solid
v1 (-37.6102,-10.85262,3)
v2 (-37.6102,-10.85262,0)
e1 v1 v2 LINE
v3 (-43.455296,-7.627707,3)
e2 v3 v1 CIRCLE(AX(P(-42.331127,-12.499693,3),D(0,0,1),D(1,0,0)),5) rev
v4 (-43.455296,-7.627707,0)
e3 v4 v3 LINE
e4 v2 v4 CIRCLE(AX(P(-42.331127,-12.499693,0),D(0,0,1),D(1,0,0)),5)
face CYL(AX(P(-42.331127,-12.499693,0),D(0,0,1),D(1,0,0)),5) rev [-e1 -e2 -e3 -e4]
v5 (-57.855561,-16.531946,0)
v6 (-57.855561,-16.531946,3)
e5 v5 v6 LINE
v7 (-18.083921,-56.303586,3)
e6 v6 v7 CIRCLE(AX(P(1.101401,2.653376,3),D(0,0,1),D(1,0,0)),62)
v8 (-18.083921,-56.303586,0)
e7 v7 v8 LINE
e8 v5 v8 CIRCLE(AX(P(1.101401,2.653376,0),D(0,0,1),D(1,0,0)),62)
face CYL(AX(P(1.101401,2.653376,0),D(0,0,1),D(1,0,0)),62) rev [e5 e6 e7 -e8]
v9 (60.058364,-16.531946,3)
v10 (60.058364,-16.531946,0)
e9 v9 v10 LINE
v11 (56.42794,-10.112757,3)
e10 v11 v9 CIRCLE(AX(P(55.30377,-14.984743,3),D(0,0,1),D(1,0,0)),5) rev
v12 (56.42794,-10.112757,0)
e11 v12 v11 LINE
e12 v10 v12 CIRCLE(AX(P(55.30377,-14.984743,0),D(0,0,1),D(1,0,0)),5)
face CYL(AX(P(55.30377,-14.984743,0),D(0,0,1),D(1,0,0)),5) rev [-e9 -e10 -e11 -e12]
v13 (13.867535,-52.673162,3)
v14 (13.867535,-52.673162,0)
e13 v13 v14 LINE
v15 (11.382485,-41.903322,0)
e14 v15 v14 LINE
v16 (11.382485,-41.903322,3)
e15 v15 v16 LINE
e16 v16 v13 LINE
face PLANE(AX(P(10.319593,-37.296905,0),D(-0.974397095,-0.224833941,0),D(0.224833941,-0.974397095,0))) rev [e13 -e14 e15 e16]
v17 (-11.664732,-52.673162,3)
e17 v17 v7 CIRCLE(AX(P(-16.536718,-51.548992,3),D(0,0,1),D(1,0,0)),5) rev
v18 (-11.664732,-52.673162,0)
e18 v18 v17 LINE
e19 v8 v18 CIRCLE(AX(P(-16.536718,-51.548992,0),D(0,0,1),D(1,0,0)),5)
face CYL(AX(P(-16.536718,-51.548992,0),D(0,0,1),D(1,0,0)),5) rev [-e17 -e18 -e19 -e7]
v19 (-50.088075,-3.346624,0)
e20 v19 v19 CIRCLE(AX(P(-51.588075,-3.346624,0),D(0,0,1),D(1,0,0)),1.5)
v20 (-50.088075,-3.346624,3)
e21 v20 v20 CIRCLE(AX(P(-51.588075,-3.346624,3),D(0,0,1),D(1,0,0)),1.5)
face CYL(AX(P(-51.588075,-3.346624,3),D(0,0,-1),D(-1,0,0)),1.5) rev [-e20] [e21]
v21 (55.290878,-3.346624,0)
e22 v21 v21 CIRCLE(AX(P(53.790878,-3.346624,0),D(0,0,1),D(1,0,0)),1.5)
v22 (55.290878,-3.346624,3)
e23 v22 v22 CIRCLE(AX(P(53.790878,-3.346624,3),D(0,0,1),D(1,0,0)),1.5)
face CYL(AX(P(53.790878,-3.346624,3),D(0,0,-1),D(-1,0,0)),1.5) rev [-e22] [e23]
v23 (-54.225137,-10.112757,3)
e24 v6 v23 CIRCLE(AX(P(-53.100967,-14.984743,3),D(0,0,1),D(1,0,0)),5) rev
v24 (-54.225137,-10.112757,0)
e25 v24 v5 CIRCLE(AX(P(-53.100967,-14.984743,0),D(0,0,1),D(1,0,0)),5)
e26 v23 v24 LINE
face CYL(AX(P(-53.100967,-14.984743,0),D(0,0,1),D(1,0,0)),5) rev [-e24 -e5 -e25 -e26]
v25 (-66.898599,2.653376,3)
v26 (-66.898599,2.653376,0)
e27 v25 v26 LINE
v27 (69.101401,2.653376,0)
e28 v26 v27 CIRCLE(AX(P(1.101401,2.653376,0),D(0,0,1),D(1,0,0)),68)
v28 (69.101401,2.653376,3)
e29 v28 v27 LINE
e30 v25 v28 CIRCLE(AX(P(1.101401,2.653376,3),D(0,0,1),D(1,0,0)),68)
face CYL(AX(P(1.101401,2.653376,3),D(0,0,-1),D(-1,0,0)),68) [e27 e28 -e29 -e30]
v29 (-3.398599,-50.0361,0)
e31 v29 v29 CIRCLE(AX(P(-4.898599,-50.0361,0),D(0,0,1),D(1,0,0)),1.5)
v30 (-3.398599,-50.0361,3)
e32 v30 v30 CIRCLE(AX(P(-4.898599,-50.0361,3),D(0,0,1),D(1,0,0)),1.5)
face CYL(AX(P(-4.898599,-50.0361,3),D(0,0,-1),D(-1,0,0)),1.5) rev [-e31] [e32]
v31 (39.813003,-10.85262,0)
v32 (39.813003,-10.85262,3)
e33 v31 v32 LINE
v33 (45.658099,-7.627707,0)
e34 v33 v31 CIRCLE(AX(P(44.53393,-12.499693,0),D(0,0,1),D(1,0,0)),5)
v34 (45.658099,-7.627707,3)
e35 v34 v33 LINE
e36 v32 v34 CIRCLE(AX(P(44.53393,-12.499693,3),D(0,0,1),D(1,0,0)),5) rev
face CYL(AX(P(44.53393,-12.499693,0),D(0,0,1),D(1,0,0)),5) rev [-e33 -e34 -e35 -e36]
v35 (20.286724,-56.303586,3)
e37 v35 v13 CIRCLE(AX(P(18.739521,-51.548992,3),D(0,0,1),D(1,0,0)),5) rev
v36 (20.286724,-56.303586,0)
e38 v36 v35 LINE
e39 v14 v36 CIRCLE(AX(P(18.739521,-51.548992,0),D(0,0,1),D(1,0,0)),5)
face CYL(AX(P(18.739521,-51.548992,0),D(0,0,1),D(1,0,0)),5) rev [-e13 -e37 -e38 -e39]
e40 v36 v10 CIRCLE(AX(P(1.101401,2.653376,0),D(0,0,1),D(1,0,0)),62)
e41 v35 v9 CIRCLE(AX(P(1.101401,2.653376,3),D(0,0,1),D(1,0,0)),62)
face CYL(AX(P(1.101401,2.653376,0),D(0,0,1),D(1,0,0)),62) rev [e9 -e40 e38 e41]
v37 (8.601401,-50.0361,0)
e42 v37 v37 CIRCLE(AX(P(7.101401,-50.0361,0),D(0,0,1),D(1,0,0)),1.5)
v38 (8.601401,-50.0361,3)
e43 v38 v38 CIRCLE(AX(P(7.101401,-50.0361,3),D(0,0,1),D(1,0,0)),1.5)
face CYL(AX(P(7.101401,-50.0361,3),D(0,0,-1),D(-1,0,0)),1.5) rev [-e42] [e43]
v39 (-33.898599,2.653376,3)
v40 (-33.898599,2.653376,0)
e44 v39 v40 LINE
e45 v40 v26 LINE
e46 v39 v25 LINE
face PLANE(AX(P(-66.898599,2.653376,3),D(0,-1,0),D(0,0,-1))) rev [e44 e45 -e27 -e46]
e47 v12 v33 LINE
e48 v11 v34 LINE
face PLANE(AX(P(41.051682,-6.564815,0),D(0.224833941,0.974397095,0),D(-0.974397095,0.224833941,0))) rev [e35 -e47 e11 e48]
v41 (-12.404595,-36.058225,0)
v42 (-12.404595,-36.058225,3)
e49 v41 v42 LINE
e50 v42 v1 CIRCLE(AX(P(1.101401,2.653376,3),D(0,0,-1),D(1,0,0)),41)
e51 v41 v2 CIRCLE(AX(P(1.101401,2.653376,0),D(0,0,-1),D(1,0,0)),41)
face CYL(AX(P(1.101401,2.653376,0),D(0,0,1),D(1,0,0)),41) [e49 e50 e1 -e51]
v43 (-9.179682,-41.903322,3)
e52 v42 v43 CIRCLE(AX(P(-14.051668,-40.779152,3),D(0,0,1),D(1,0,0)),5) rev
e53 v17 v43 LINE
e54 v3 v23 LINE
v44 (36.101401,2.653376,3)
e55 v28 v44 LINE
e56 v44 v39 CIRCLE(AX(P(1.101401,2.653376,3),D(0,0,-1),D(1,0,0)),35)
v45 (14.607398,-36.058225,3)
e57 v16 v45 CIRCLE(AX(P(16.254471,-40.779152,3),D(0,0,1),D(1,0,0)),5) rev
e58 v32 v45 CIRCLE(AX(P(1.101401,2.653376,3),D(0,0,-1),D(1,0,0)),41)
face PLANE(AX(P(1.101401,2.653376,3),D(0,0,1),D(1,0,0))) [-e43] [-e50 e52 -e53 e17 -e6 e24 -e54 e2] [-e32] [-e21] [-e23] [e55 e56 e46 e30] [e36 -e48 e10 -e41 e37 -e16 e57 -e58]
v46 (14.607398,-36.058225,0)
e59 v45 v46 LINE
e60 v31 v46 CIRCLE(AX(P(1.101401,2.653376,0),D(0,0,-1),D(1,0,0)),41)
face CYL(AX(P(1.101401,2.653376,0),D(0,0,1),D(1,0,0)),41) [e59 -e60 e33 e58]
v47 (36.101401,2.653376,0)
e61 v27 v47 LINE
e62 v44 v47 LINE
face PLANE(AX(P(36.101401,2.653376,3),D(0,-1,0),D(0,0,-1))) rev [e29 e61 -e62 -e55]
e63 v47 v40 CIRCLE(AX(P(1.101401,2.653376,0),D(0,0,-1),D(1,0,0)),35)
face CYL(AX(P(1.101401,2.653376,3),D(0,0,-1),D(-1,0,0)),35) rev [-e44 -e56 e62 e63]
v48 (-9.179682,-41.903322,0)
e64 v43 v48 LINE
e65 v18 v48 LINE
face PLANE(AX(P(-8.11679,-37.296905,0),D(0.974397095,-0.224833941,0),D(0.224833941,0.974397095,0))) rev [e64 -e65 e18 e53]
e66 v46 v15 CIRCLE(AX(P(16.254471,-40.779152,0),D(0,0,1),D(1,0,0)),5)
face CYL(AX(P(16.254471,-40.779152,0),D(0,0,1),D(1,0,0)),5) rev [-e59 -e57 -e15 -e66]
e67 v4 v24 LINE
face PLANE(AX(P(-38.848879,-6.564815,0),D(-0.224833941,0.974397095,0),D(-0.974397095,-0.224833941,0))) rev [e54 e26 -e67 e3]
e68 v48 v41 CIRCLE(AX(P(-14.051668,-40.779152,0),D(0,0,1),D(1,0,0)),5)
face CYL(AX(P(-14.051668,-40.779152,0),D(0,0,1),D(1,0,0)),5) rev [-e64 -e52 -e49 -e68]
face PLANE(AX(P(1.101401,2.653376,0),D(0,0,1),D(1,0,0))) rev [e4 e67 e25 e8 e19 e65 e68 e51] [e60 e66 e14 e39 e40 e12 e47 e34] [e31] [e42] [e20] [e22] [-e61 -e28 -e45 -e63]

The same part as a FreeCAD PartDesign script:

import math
import FreeCAD as App
import Part
import Sketcher
from FreeCAD import Vector


def edges_at(feature, points):
    """Names of the edges that pass closest to the given points."""
    edges = feature.Shape.Edges
    near = lambda p: min(range(len(edges)), key=lambda i: edges[i].distToShape(Part.Vertex(*p))[0])
    return sorted({f"Edge{near(p) + 1}" for p in points})

doc = App.newDocument("Part")
body = doc.addObject("PartDesign::Body", "Body")

# Sketch on XY plane
sketch1 = body.newObject("Sketcher::SketchObject", "Sketch")
sketch1.AttachmentSupport = (doc.getObject("XY_Plane"), [""])
sketch1.MapMode = "FlatFace"
sketch1.addGeometry([
    Part.LineSegment(Vector(-33.898599, 2.653376, 0), Vector(-66.898599, 2.653376, 0)),  # 0
    Part.ArcOfCircle(Part.Circle(Vector(1.101401, 2.653376, 0), Vector(0, 0, 1), 68), math.radians(180), math.radians(360)),  # 1
    Part.LineSegment(Vector(69.101401, 2.653376, 0), Vector(36.101401, 2.653376, 0)),  # 2
    Part.ArcOfCircle(Part.Circle(Vector(1.101401, 2.653376, 0), Vector(0, 0, 1), 35), math.radians(180), math.radians(360)),  # 3
    Part.Circle(Vector(7.101401, -50.0361, 0), Vector(0, 0, 1), 1.5),  # 4
    Part.Circle(Vector(-4.898599, -50.0361, 0), Vector(0, 0, 1), 1.5),  # 5
    Part.Circle(Vector(53.790878, -3.346624, 0), Vector(0, 0, 1), 1.5),  # 6
    Part.Circle(Vector(-51.588075, -3.346624, 0), Vector(0, 0, 1), 1.5),  # 7
], False)
sketch1.addConstraint([
    Sketcher.Constraint("Coincident", 0, 2, 1, 1),
    Sketcher.Constraint("Coincident", 1, 2, 2, 1),
    Sketcher.Constraint("Coincident", 2, 2, 3, 2),
    Sketcher.Constraint("Coincident", 3, 1, 0, 1),
    Sketcher.Constraint("Horizontal", 0),
    Sketcher.Constraint("Horizontal", 2),
    Sketcher.Constraint("Coincident", 3, 3, 1, 3),
    Sketcher.Constraint("Equal", 4, 5),
    Sketcher.Constraint("Equal", 5, 6),
    Sketcher.Constraint("Equal", 6, 7),
    Sketcher.Constraint("Horizontal", 4, 3, 5, 3),
    Sketcher.Constraint("Horizontal", 6, 3, 7, 3),
    Sketcher.Constraint("Horizontal", 3, 3, 0, 2),
    Sketcher.Constraint("Horizontal", 0, 2, 1, 2),
    Sketcher.Constraint("Diameter", 4, 3.0),
    Sketcher.Constraint("Radius", 1, 68.0),
    Sketcher.Constraint("Radius", 3, 35.0),
    Sketcher.Constraint("DistanceX", 1, 3, 4, 3, 6.0),
    Sketcher.Constraint("DistanceX", 5, 3, 4, 3, 12.0),
    Sketcher.Constraint("DistanceY", 6, 3, 1, 3, 6.0),
    Sketcher.Constraint("DistanceX", -1, 1, 1, 3, 1.101401),
    Sketcher.Constraint("DistanceY", 4, 3, -1, 1, 50.0361),
    Sketcher.Constraint("DistanceY", -1, 1, 1, 3, 2.653376),
    Sketcher.Constraint("DistanceX", -1, 1, 6, 3, 53.790878),
    Sketcher.Constraint("DistanceX", 7, 3, -1, 1, 51.588075),
])
pad1 = body.newObject("PartDesign::Pad", "Pad")
pad1.Profile = sketch1
pad1.Length = 3

# Sketch on XY plane
sketch2 = body.newObject("Sketcher::SketchObject", "Sketch001")
sketch2.AttachmentSupport = (doc.getObject("XY_Plane"), [""])
sketch2.MapMode = "FlatFace"
sketch2.AttachmentOffset = App.Placement(Vector(0, 0, 3), App.Rotation())
sketch2.addGeometry([
    Part.LineSegment(Vector(10.319593, -37.296905, 0), Vector(15.041106, -57.759244, 0)),  # 0
    Part.ArcOfCircle(Part.Circle(Vector(1.101401, 2.653376, 0), Vector(0, 0, 1), 62), math.radians(-77.006887), math.radians(-12.993113)),  # 1
    Part.LineSegment(Vector(61.514021, -11.286328, 0), Vector(41.051682, -6.564815, 0)),  # 2
    Part.ArcOfCircle(Part.Circle(Vector(1.101401, 2.653376, 0), Vector(0, 0, 1), 41), math.radians(-77.006887), math.radians(-12.993113)),  # 3
    Part.LineSegment(Vector(-12.838303, -57.759244, 0), Vector(-8.11679, -37.296905, 0)),  # 4
    Part.ArcOfCircle(Part.Circle(Vector(1.101401, 2.653376, 0), Vector(0, 0, 1), 41), math.radians(-167.006887), math.radians(-102.993113)),  # 5
    Part.LineSegment(Vector(-38.848879, -6.564815, 0), Vector(-59.311218, -11.286328, 0)),  # 6
    Part.ArcOfCircle(Part.Circle(Vector(1.101401, 2.653376, 0), Vector(0, 0, 1), 62), math.radians(-167.006887), math.radians(-102.993113)),  # 7
], False)
sketch2.addConstraint([
    Sketcher.Constraint("Coincident", 0, 2, 1, 1),
    Sketcher.Constraint("Coincident", 1, 2, 2, 1),
    Sketcher.Constraint("Coincident", 2, 2, 3, 2),
    Sketcher.Constraint("Coincident", 3, 1, 0, 1),
    Sketcher.Constraint("Coincident", 4, 2, 5, 2),
    Sketcher.Constraint("Coincident", 5, 1, 6, 1),
    Sketcher.Constraint("Coincident", 6, 2, 7, 1),
    Sketcher.Constraint("Coincident", 7, 2, 4, 1),
    Sketcher.Constraint("Coincident", 3, 3, 1, 3),
    Sketcher.Constraint("Coincident", 5, 3, 1, 3),
    Sketcher.Constraint("Coincident", 7, 3, 1, 3),
    Sketcher.Constraint("Equal", 3, 5),
    Sketcher.Constraint("Equal", 1, 7),
    Sketcher.Constraint("Perpendicular", 2, 4),
    Sketcher.Constraint("Perpendicular", 0, 6),
    Sketcher.Constraint("Horizontal", 3, 1, 4, 2),
    Sketcher.Constraint("Horizontal", 2, 2, 5, 1),
    Sketcher.Constraint("Horizontal", 1, 2, 6, 2),
    Sketcher.Constraint("Radius", 1, 62.0),
    Sketcher.Constraint("Radius", 3, 41.0),
    Sketcher.Constraint("DistanceX", -1, 1, 1, 3, 1.101401),
    Sketcher.Constraint("DistanceX", -1, 1, 1, 2, 61.514021),
    Sketcher.Constraint("DistanceY", 1, 2, -1, 1, 11.286328),
    Sketcher.Constraint("DistanceX", 4, 2, -1, 1, 8.11679),
    Sketcher.Constraint("DistanceX", 5, 1, -1, 1, 38.848879),
])
pocket1 = body.newObject("PartDesign::Pocket", "Pocket")
pocket1.Profile = sketch2
pocket1.Length = 3
doc.recompute()

fillet = body.newObject("PartDesign::Fillet", "Fillet")
fillet.Base = (pocket1, edges_at(pocket1, [
    (-38.849, -6.565, 1.5),
    (-8.117, -37.297, 1.5),
    (-12.838, -57.759, 1.5),
    (-59.311, -11.286, 1.5),
    (10.32, -37.297, 1.5),
    (41.052, -6.565, 1.5),
    (61.514, -11.286, 1.5),
    (15.041, -57.759, 1.5),
]))
fillet.Radius = 5

doc.recompute()
